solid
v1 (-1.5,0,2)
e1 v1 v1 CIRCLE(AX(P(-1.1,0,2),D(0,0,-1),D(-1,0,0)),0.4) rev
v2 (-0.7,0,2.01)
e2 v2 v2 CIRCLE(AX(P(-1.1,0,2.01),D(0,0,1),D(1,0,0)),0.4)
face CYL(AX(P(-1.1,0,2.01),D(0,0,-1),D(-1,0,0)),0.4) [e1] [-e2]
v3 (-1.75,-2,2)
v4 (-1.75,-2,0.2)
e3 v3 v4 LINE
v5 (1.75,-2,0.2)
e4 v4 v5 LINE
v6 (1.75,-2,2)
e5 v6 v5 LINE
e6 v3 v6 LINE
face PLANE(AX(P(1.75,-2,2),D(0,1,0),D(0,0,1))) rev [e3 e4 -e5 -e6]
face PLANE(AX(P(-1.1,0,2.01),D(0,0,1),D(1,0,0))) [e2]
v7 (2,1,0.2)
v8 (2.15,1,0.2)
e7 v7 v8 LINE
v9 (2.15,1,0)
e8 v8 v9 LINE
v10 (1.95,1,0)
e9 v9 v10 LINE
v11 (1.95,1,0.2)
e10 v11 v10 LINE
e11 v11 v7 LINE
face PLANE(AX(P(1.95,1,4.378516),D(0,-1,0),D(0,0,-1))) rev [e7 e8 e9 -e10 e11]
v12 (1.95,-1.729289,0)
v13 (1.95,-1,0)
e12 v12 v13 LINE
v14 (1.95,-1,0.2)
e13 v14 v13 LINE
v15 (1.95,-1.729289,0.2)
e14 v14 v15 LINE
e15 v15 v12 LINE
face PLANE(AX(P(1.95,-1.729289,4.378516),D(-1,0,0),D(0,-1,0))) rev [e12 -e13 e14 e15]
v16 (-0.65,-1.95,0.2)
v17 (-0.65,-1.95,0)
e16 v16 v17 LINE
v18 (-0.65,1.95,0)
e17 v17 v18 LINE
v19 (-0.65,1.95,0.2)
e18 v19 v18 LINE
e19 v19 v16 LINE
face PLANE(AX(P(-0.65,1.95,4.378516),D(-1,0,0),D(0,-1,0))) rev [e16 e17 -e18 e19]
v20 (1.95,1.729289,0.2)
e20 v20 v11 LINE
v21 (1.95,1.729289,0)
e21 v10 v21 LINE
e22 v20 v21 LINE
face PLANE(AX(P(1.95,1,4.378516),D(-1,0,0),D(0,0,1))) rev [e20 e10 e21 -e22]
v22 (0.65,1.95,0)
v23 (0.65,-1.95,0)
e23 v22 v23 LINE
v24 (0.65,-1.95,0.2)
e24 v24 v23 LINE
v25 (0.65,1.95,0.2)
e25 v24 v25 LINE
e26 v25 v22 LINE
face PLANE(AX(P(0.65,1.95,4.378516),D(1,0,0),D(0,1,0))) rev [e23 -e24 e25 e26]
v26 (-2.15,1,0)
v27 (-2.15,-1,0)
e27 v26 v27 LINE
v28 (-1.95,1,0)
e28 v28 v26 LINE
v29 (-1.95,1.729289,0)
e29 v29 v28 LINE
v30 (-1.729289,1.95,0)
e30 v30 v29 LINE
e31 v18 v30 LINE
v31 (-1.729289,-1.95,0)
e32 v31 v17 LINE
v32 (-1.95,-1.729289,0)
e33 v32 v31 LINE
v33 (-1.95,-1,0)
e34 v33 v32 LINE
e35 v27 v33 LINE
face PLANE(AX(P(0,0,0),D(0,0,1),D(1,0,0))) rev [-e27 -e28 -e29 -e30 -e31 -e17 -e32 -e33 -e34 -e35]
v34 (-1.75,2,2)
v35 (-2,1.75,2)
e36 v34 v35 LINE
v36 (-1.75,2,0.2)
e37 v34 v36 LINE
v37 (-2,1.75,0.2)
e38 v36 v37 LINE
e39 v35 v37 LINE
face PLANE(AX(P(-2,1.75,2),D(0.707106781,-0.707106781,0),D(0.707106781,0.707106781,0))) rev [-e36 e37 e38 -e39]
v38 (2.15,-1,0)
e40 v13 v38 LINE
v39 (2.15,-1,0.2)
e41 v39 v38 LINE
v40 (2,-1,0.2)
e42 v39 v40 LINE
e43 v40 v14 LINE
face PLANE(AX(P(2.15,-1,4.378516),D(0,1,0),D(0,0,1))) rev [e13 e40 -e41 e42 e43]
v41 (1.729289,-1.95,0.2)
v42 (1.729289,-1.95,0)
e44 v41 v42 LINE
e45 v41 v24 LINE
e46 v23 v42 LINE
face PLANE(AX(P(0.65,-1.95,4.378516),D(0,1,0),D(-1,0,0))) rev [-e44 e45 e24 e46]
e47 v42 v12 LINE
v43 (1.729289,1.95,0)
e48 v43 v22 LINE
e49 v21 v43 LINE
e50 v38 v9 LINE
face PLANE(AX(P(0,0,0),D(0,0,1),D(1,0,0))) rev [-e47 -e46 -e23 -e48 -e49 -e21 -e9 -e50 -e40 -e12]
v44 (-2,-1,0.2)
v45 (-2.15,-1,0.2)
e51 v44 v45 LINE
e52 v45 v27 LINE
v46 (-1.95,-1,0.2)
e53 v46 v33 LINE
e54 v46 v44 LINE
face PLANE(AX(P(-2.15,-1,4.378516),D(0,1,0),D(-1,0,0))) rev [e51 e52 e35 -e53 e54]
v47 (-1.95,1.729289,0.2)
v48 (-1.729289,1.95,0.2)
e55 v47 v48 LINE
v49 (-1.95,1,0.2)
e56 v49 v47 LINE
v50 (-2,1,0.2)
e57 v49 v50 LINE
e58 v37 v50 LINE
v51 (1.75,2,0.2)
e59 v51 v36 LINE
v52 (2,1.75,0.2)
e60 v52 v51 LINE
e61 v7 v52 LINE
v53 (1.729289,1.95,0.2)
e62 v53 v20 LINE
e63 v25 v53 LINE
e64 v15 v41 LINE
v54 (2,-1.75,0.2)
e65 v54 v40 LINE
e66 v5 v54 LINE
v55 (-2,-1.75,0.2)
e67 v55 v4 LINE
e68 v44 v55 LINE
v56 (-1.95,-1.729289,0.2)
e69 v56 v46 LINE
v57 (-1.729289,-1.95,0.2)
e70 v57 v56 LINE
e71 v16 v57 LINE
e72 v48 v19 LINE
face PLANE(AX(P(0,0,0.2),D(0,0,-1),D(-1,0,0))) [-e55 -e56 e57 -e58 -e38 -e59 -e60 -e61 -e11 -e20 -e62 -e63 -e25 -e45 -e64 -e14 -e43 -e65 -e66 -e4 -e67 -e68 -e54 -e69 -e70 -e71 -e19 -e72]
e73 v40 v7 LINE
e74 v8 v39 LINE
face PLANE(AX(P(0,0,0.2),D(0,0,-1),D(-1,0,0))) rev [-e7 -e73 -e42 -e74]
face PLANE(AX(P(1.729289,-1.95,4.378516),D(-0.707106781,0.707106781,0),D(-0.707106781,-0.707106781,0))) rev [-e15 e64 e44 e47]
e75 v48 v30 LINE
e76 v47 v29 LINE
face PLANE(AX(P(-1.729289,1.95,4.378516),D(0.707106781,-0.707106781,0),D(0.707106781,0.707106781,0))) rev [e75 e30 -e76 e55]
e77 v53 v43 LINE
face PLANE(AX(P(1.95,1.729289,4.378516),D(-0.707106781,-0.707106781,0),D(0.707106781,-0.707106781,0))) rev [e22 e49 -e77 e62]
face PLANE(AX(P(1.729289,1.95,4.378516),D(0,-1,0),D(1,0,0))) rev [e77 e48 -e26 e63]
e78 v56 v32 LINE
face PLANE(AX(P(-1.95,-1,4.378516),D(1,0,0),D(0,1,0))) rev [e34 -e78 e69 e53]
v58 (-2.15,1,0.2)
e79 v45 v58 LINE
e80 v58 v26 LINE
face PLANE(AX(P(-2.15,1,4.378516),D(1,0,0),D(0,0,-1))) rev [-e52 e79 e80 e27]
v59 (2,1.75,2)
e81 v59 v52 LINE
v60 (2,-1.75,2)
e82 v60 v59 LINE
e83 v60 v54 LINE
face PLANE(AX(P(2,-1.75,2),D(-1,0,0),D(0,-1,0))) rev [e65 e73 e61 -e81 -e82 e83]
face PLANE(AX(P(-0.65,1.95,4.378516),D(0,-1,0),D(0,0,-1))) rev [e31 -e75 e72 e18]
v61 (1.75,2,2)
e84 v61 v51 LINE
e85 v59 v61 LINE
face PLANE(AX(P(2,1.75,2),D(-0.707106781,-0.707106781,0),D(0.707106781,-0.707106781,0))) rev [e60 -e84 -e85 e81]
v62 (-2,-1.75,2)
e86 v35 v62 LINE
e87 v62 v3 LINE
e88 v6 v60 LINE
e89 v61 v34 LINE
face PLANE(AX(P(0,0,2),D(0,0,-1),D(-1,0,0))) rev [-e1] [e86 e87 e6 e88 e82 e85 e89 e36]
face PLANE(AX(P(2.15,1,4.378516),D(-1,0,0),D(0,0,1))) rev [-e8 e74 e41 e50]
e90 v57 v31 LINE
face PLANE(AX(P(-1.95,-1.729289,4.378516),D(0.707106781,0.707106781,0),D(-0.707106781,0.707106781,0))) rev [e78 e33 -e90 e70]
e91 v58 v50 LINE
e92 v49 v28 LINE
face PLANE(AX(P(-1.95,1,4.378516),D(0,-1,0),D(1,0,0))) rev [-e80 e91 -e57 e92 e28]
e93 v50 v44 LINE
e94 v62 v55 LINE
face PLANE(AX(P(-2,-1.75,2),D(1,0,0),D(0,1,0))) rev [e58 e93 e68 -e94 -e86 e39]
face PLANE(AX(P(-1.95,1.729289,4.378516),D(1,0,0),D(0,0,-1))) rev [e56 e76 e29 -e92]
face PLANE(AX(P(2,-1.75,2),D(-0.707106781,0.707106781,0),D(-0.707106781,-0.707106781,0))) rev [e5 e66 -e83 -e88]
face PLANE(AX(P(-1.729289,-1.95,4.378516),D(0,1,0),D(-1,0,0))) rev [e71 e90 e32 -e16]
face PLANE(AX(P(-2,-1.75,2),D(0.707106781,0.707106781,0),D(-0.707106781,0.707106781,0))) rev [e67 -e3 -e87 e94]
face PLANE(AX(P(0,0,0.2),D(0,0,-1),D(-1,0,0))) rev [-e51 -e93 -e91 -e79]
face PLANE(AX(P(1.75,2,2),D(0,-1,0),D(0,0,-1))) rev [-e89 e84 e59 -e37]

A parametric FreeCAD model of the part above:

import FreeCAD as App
import Part
import Sketcher
from FreeCAD import Vector
Q = App.Units.Quantity

doc = App.newDocument("Part")
body = doc.addObject("PartDesign::Body", "Body")

# Sketch on XY plane
sketch1 = body.newObject("Sketcher::SketchObject", "Sketch")
sketch1.AttachmentSupport = (doc.getObject("XY_Plane"), [""])
sketch1.MapMode = "FlatFace"
sketch1.AttachmentOffset = App.Placement(Vector(0, 0, 0.2), App.Rotation())
sketch1.addGeometry([
    Part.LineSegment(Vector(2, -1.75, 0), Vector(2, 1.75, 0)),  # 0
    Part.LineSegment(Vector(2, 1.75, 0), Vector(1.75, 2, 0)),  # 1
    Part.LineSegment(Vector(1.75, 2, 0), Vector(-1.75, 2, 0)),  # 2
    Part.LineSegment(Vector(-1.75, 2, 0), Vector(-2, 1.75, 0)),  # 3
    Part.LineSegment(Vector(-2, 1.75, 0), Vector(-2, -1.75, 0)),  # 4
    Part.LineSegment(Vector(-2, -1.75, 0), Vector(-1.75, -2, 0)),  # 5
    Part.LineSegment(Vector(-1.75, -2, 0), Vector(1.75, -2, 0)),  # 6
    Part.LineSegment(Vector(1.75, -2, 0), Vector(2, -1.75, 0)),  # 7
], False)
sketch1.addConstraint([
    Sketcher.Constraint("Coincident", 0, 2, 1, 1),
    Sketcher.Constraint("Coincident", 1, 2, 2, 1),
    Sketcher.Constraint("Coincident", 2, 2, 3, 1),
    Sketcher.Constraint("Coincident", 3, 2, 4, 1),
    Sketcher.Constraint("Coincident", 4, 2, 5, 1),
    Sketcher.Constraint("Coincident", 5, 2, 6, 1),
    Sketcher.Constraint("Coincident", 6, 2, 7, 1),
    Sketcher.Constraint("Coincident", 7, 2, 0, 1),
    Sketcher.Constraint("Vertical", 0),
    Sketcher.Constraint("Horizontal", 2),
    Sketcher.Constraint("Vertical", 4),
    Sketcher.Constraint("Horizontal", 6),
    Sketcher.Constraint("Symmetric", 0, 2, 4, 2, -1, 1),
    Sketcher.Constraint("Symmetric", 1, 2, 5, 2, -1, 1),
    Sketcher.Constraint("Perpendicular", 1, 3),
    Sketcher.Constraint("Perpendicular", 5, 7),
    Sketcher.Constraint("Horizontal", 0, 2, 3, 2),
    Sketcher.Constraint("Horizontal", 4, 2, 7, 2),
    Sketcher.Constraint("Vertical", 2, 2, 5, 2),
    Sketcher.Constraint("Equal", 6, 0),
    Sketcher.Constraint("DistanceX", 2, 2, 2, 1, Q("3.5 mm")),
    Sketcher.Constraint("DistanceX", -1, 1, 0, 2, Q("2 mm")),
])
pad1 = body.newObject("PartDesign::Pad", "Pad")
pad1.Profile = sketch1
pad1.Length = 1.8

# Sketch on XY plane
sketch2 = body.newObject("Sketcher::SketchObject", "Sketch001")
sketch2.AttachmentSupport = (doc.getObject("XY_Plane"), [""])
sketch2.MapMode = "FlatFace"
sketch2.addGeometry([
    Part.LineSegment(Vector(0.65, 1.95, 0), Vector(0.65, -1.95, 0)),  # 0
    Part.LineSegment(Vector(0.65, -1.95, 0), Vector(1.73, -1.95, 0)),  # 1
    Part.LineSegment(Vector(1.73, -1.95, 0), Vector(1.95, -1.73, 0)),  # 2
    Part.LineSegment(Vector(1.95, -1.73, 0), Vector(1.95, -1, 0)),  # 3
    Part.LineSegment(Vector(1.95, -1, 0), Vector(2.15, -1, 0)),  # 4
    Part.LineSegment(Vector(2.15, -1, 0), Vector(2.15, 1, 0)),  # 5
    Part.LineSegment(Vector(2.15, 1, 0), Vector(1.95, 1, 0)),  # 6
    Part.LineSegment(Vector(1.95, 1, 0), Vector(1.95, 1.73, 0)),  # 7
    Part.LineSegment(Vector(1.95, 1.73, 0), Vector(1.73, 1.95, 0)),  # 8
    Part.LineSegment(Vector(1.73, 1.95, 0), Vector(0.65, 1.95, 0)),  # 9
    Part.LineSegment(Vector(-0.65, -1.95, 0), Vector(-0.65, 1.95, 0)),  # 10
    Part.LineSegment(Vector(-0.65, 1.95, 0), Vector(-1.73, 1.95, 0)),  # 11
    Part.LineSegment(Vector(-1.73, 1.95, 0), Vector(-1.95, 1.73, 0)),  # 12
    Part.LineSegment(Vector(-1.95, 1.73, 0), Vector(-1.95, 1, 0)),  # 13
    Part.LineSegment(Vector(-1.95, 1, 0), Vector(-2.15, 1, 0)),  # 14
    Part.LineSegment(Vector(-2.15, 1, 0), Vector(-2.15, -1, 0)),  # 15
    Part.LineSegment(Vector(-2.15, -1, 0), Vector(-1.95, -1, 0)),  # 16
    Part.LineSegment(Vector(-1.95, -1, 0), Vector(-1.95, -1.73, 0)),  # 17
    Part.LineSegment(Vector(-1.95, -1.73, 0), Vector(-1.73, -1.95, 0)),  # 18
    Part.LineSegment(Vector(-1.73, -1.95, 0), Vector(-0.65, -1.95, 0)),  # 19
], False)
sketch2.addConstraint([
    Sketcher.Constraint("Coincident", 0, 2, 1, 1),
    Sketcher.Constraint("Coincident", 1, 2, 2, 1),
    Sketcher.Constraint("Coincident", 2, 2, 3, 1),
    Sketcher.Constraint("Coincident", 3, 2, 4, 1),
    Sketcher.Constraint("Coincident", 4, 2, 5, 1),
    Sketcher.Constraint("Coincident", 5, 2, 6, 1),
    Sketcher.Constraint("Coincident", 6, 2, 7, 1),
    Sketcher.Constraint("Coincident", 7, 2, 8, 1),
    Sketcher.Constraint("Coincident", 8, 2, 9, 1),
    Sketcher.Constraint("Coincident", 9, 2, 0, 1),
    Sketcher.Constraint("Coincident", 10, 2, 11, 1),
    Sketcher.Constraint("Coincident", 11, 2, 12, 1),
    Sketcher.Constraint("Coincident", 12, 2, 13, 1),
    Sketcher.Constraint("Coincident", 13, 2, 14, 1),
    Sketcher.Constraint("Coincident", 14, 2, 15, 1),
    Sketcher.Constraint("Coincident", 15, 2, 16, 1),
    Sketcher.Constraint("Coincident", 16, 2, 17, 1),
    Sketcher.Constraint("Coincident", 17, 2, 18, 1),
    Sketcher.Constraint("Coincident", 18, 2, 19, 1),
    Sketcher.Constraint("Coincident", 19, 2, 10, 1),
    Sketcher.Constraint("Vertical", 0),
    Sketcher.Constraint("Horizontal", 1),
    Sketcher.Constraint("Vertical", 3),
    Sketcher.Constraint("Horizontal", 4),
    Sketcher.Constraint("Vertical", 5),
    Sketcher.Constraint("Horizontal", 6),
    Sketcher.Constraint("Vertical", 7),
    Sketcher.Constraint("Horizontal", 9),
    Sketcher.Constraint("Vertical", 10),
    Sketcher.Constraint("Horizontal", 11),
    Sketcher.Constraint("Vertical", 13),
    Sketcher.Constraint("Horizontal", 14),
    Sketcher.Constraint("Vertical", 15),
    Sketcher.Constraint("Horizontal", 16),
    Sketcher.Constraint("Vertical", 17),
    Sketcher.Constraint("Horizontal", 19),
    Sketcher.Constraint("Symmetric", 0, 2, 10, 2, -1, 1),
    Sketcher.Constraint("Symmetric", 2, 2, 12, 2, -1, 1),
    Sketcher.Constraint("Symmetric", 4, 2, 14, 2, -1, 1),
    Sketcher.Constraint("Symmetric", 6, 2, 16, 2, -1, 1),
    Sketcher.Constraint("Symmetric", 8, 2, 18, 2, -1, 1),
    Sketcher.Constraint("Symmetric", 8, 2, 11, 2, -2),
    Sketcher.Constraint("Symmetric", 7, 2, 12, 2, -2),
    Sketcher.Constraint("Perpendicular", 2, 8),
    Sketcher.Constraint("Perpendicular", 8, 12),
    Sketcher.Constraint("Perpendicular", 12, 18),
    Sketcher.Constraint("Horizontal", 6, 2, 13, 2),
    Sketcher.Constraint("DistanceY", 5, 1, 5, 2, Q("2 mm")),
    Sketcher.Constraint("DistanceX", 4, 1, 4, 2, Q("0.2 mm")),
    Sketcher.Constraint("DistanceY", 0, 2, 0, 1, Q("3.9 mm")),
    Sketcher.Constraint("DistanceX", 0, 2, 2, 2, Q("1.3 mm")),
    Sketcher.Constraint("DistanceX", 10, 2, 9, 2, Q("1.3 mm")),
    Sketcher.Constraint("DistanceX", 1, 1, 1, 2, Q("1.079289 mm")),
])
pad2 = body.newObject("PartDesign::Pad", "Pad001")
pad2.Profile = sketch2
pad2.Length = 0.2

# Sketch on XY plane
sketch3 = body.newObject("Sketcher::SketchObject", "Sketch002")
sketch3.AttachmentSupport = (doc.getObject("XY_Plane"), [""])
sketch3.MapMode = "FlatFace"
sketch3.AttachmentOffset = App.Placement(Vector(0, 0, 2), App.Rotation())
sketch3.addGeometry(Part.Circle(Vector(-1.1, 0, 0), Vector(0, 0, 1), 0.4), False)
sketch3.addConstraint([
    Sketcher.Constraint("PointOnObject", 0, 3, -1),
    Sketcher.Constraint("Diameter", 0, Q("0.8 mm")),
    Sketcher.Constraint("DistanceX", 0, 3, -1, 1, Q("1.1 mm")),
])
pad3 = body.newObject("PartDesign::Pad", "Pad002")
pad3.Profile = sketch3
pad3.Length = 0.01

doc.recompute()
